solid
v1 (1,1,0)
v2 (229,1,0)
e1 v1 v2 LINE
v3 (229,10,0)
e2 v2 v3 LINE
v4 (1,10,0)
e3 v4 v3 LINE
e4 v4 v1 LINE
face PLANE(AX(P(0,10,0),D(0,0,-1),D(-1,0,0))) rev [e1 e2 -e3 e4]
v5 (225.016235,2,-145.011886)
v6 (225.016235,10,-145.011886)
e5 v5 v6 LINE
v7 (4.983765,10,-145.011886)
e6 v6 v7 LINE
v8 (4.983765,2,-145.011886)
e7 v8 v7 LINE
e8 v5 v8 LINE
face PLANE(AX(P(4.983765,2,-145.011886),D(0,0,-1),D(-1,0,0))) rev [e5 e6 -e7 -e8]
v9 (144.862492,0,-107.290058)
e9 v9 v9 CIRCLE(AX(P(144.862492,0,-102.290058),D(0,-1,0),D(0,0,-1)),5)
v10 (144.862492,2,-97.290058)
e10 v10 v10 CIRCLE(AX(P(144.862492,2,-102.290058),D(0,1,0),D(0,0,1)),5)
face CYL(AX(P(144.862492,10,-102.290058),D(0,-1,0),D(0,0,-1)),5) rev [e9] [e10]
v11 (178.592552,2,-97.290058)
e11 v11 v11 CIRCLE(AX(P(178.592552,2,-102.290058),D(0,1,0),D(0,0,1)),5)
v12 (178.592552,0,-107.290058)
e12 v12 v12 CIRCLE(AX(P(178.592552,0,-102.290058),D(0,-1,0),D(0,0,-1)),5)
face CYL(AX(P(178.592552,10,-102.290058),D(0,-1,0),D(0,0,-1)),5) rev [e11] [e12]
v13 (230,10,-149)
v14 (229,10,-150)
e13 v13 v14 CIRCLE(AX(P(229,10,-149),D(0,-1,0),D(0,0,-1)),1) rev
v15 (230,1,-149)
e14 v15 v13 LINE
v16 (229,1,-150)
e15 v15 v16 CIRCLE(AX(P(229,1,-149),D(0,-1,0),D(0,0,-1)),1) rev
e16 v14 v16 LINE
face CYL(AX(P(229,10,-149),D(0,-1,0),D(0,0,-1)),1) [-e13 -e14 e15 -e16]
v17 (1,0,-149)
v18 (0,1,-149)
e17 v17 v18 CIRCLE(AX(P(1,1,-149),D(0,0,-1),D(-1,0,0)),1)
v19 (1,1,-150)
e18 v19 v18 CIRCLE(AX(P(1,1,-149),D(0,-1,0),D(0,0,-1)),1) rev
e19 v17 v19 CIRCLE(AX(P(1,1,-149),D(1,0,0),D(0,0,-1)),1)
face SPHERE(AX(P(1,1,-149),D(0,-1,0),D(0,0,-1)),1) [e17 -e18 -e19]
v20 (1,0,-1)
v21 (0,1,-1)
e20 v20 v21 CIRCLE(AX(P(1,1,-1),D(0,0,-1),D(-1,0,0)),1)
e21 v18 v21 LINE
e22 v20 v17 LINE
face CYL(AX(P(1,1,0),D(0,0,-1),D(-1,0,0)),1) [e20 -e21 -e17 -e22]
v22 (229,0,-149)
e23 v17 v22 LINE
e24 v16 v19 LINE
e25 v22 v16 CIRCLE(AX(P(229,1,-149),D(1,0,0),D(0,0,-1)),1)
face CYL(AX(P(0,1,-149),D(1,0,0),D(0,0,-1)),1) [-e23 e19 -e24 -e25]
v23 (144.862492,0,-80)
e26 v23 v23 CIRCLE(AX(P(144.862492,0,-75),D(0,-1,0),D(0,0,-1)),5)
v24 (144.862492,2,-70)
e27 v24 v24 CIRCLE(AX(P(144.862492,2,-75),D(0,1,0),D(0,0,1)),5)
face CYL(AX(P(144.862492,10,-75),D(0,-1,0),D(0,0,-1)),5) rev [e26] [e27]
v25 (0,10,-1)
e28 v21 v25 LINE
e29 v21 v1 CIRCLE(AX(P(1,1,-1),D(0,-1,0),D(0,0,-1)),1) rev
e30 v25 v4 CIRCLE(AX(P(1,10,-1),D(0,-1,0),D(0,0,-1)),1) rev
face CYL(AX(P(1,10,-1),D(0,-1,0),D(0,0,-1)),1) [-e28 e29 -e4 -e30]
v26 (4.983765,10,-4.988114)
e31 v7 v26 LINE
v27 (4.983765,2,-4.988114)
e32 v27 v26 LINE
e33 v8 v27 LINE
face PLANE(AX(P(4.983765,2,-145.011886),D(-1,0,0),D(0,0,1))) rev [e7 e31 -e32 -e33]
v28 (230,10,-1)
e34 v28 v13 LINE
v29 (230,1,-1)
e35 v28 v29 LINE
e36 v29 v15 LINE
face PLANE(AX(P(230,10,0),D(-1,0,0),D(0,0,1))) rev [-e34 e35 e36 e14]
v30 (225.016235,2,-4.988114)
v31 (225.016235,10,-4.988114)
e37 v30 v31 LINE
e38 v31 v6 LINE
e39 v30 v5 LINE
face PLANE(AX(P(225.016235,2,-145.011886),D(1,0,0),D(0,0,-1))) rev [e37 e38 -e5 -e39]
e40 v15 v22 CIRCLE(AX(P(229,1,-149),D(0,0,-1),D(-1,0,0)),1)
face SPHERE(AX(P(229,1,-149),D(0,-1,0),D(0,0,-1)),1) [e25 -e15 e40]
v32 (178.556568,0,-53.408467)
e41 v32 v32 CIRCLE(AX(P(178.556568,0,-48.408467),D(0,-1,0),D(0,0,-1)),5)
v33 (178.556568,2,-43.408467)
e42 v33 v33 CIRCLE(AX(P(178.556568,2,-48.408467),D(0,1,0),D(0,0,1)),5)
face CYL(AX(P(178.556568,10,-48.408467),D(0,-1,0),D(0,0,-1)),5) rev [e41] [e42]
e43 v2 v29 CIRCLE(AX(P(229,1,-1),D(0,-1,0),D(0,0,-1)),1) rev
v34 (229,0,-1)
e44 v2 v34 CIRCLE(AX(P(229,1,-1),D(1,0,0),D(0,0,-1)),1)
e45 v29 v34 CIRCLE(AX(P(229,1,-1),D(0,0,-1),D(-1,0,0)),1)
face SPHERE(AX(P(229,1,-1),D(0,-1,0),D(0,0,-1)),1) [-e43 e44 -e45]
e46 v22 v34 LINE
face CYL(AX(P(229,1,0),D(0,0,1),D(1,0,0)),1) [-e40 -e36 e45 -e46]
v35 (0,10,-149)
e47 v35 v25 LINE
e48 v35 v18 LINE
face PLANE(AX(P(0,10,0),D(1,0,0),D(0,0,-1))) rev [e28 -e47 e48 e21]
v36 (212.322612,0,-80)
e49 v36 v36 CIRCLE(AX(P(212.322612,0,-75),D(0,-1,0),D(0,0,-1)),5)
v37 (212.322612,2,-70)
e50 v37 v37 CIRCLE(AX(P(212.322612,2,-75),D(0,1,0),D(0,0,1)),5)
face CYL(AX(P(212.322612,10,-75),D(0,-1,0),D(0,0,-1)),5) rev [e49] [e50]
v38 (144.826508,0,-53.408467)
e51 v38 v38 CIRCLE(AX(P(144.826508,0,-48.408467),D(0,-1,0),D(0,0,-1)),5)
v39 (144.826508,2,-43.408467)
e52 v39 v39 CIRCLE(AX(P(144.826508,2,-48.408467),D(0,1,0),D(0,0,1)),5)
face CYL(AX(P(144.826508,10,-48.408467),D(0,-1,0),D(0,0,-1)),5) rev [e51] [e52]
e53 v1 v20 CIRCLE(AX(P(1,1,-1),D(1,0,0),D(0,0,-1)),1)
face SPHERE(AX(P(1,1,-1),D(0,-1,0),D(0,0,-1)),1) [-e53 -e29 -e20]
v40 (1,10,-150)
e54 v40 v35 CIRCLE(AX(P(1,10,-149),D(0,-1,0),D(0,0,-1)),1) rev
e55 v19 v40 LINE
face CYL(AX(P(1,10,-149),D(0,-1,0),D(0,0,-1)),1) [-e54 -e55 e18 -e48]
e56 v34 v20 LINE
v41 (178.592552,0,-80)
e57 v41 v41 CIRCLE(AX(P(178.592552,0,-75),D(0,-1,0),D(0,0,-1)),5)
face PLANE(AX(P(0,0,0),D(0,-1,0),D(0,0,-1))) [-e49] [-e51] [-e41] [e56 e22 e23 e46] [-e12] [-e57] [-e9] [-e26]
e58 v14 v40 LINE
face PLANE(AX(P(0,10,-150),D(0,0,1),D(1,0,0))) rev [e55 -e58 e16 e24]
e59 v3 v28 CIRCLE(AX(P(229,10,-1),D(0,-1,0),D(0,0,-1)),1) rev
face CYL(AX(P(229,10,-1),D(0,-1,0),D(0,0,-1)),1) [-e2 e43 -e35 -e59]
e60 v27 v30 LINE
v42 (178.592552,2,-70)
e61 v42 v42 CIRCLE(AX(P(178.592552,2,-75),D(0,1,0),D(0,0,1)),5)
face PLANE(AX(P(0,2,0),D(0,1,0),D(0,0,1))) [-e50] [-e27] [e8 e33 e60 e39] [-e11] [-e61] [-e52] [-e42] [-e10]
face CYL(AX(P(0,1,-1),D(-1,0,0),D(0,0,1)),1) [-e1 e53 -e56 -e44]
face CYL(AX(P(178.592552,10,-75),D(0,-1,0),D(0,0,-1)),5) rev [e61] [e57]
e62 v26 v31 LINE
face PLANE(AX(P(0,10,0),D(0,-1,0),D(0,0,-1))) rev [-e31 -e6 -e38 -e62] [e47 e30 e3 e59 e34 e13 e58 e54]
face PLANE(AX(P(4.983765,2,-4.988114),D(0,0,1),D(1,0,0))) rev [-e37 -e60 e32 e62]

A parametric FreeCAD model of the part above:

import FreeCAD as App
import Part
import Sketcher
from FreeCAD import Vector


def edges_at(feature, points):
    """Names of the edges that pass closest to the given points."""
    edges = feature.Shape.Edges
    near = lambda p: min(range(len(edges)), key=lambda i: edges[i].distToShape(Part.Vertex(*p))[0])
    return sorted({f"Edge{near(p) + 1}" for p in points})

doc = App.newDocument("Part")
body = doc.addObject("PartDesign::Body", "Body")

sketch1 = body.newObject("Sketcher::SketchObject", "Sketch")
sketch1.AttachmentSupport = (doc.getObject("XZ_Plane"), [""])
sketch1.MapMode = "FlatFace"
sketch1.addGeometry([
    Part.LineSegment(Vector(0, -150, 0), Vector(0, 0, 0)),
    Part.LineSegment(Vector(0, 0, 0), Vector(230, 0, 0)),
    Part.LineSegment(Vector(230, 0, 0), Vector(230, -150, 0)),
    Part.LineSegment(Vector(230, -150, 0), Vector(0, -150, 0)),
], False)
sketch1.addConstraint([
    Sketcher.Constraint("Coincident", 0, 2, 1, 1),
    Sketcher.Constraint("Coincident", 1, 2, 2, 1),
    Sketcher.Constraint("Coincident", 2, 2, 3, 1),
    Sketcher.Constraint("Coincident", 3, 2, 0, 1),
    Sketcher.Constraint("Vertical", 0),
    Sketcher.Constraint("Horizontal", 1),
    Sketcher.Constraint("Vertical", 2),
    Sketcher.Constraint("Horizontal", 3),
    Sketcher.Constraint("Coincident", 0, 2, -1, 1),
    Sketcher.Constraint("DistanceX", 1, 1, 1, 2, 230.0),
    Sketcher.Constraint("DistanceY", 0, 1, 0, 2, 150.0),
])
pad1 = body.newObject("PartDesign::Pad", "Pad")
pad1.Profile = sketch1
pad1.Length = 10
pad1.Reversed = True

sketch2 = body.newObject("Sketcher::SketchObject", "Sketch001")
sketch2.AttachmentSupport = (doc.getObject("XZ_Plane"), [""])
sketch2.MapMode = "FlatFace"
sketch2.AttachmentOffset = App.Placement(Vector(0, 0, -10), App.Rotation())
sketch2.addGeometry([
    Part.LineSegment(Vector(5, -145, 0), Vector(5, -5, 0)),
    Part.LineSegment(Vector(5, -5, 0), Vector(225, -5, 0)),
    Part.LineSegment(Vector(225, -5, 0), Vector(225, -145, 0)),
    Part.LineSegment(Vector(225, -145, 0), Vector(5, -145, 0)),
], False)
sketch2.addConstraint([
    Sketcher.Constraint("Coincident", 0, 2, 1, 1),
    Sketcher.Constraint("Coincident", 1, 2, 2, 1),
    Sketcher.Constraint("Coincident", 2, 2, 3, 1),
    Sketcher.Constraint("Coincident", 3, 2, 0, 1),
    Sketcher.Constraint("Vertical", 0),
    Sketcher.Constraint("Horizontal", 1),
    Sketcher.Constraint("Vertical", 2),
    Sketcher.Constraint("Horizontal", 3),
    Sketcher.Constraint("DistanceX", 1, 1, 1, 2, 220.032471),
    Sketcher.Constraint("DistanceY", 0, 1, 0, 2, 140.023771),
    Sketcher.Constraint("DistanceX", -1, 1, 0, 2, 4.983765),
    Sketcher.Constraint("DistanceY", 0, 2, -1, 1, 4.988114),
])
pocket1 = body.newObject("PartDesign::Pocket", "Pocket")
pocket1.Profile = sketch2
pocket1.Length = 8
pocket1.Reversed = True
doc.recompute()

fillet = body.newObject("PartDesign::Fillet", "Fillet")
fillet.Base = (pocket1, edges_at(pocket1, [(0, 5, 0)]))
fillet.Radius = 1
doc.recompute()

fillet2 = body.newObject("PartDesign::Fillet", "Fillet001")
fillet2.Base = (fillet, edges_at(fillet, [(0, 5, -150), (230, 5, -150), (230, 5, 0)]))
fillet2.Radius = 1
doc.recompute()

fillet3 = body.newObject("PartDesign::Fillet", "Fillet002")
fillet3.Base = (fillet2, edges_at(fillet2, [
    (115, 0, 0),
    (0.293, 0, -0.293),
    (0, 0, -75),
    (115, 0, -150),
    (230, 0, -75),
    (229.707, 0, -149.707),
    (229.707, 0, -0.293),
    (0.293, 0, -149.707),
]))
fillet3.Radius = 1

sketch3 = body.newObject("Sketcher::SketchObject", "Sketch002")
sketch3.AttachmentSupport = (doc.getObject("XZ_Plane"), [""])
sketch3.MapMode = "FlatFace"
sketch3.addGeometry([
    Part.Circle(Vector(145, -48, 0), Vector(0, 0, 1), 5),
    Part.Circle(Vector(179, -48, 0), Vector(0, 0, 1), 5),
    Part.Circle(Vector(179, -75, 0), Vector(0, 0, 1), 5),
    Part.Circle(Vector(145, -75, 0), Vector(0, 0, 1), 5),
    Part.Circle(Vector(145, -102, 0), Vector(0, 0, 1), 5),
    Part.Circle(Vector(179, -102, 0), Vector(0, 0, 1), 5),
    Part.Circle(Vector(212, -75, 0), Vector(0, 0, 1), 5),
], False)
sketch3.addConstraint([
    Sketcher.Constraint("Equal", 0, 1),
    Sketcher.Constraint("Equal", 1, 2),
    Sketcher.Constraint("Equal", 2, 3),
    Sketcher.Constraint("Equal", 3, 4),
    Sketcher.Constraint("Equal", 4, 5),
    Sketcher.Constraint("Equal", 5, 6),
    Sketcher.Constraint("Horizontal", 0, 3, 1, 3),
    Sketcher.Constraint("Horizontal", 2, 3, 3, 3),
    Sketcher.Constraint("Horizontal", 4, 3, 5, 3),
    Sketcher.Constraint("Horizontal", 3, 3, 6, 3),
    Sketcher.Constraint("Vertical", 3, 3, 4, 3),
    Sketcher.Constraint("Vertical", 2, 3, 5, 3),
    Sketcher.Constraint("Diameter", 0, 10.0),
    Sketcher.Constraint("DistanceY", 2, 3, -1, 1, 75.0),
    Sketcher.Constraint("DistanceX", -1, 1, 0, 3, 144.826508),
    Sketcher.Constraint("DistanceX", -1, 1, 1, 3, 178.556568),
    Sketcher.Constraint("DistanceX", -1, 1, 3, 3, 144.862492),
    Sketcher.Constraint("DistanceX", 3, 3, 2, 3, 33.73006),
    Sketcher.Constraint("DistanceY", 4, 3, 0, 3, 53.881591),
    Sketcher.Constraint("DistanceX", 2, 3, 6, 3, 33.73006),
    Sketcher.Constraint("DistanceY", 0, 3, -1, 1, 48.408467),
])
pocket2 = body.newObject("PartDesign::Pocket", "Pocket001")
pocket2.Profile = sketch3
pocket2.Length = 10

doc.recompute()
